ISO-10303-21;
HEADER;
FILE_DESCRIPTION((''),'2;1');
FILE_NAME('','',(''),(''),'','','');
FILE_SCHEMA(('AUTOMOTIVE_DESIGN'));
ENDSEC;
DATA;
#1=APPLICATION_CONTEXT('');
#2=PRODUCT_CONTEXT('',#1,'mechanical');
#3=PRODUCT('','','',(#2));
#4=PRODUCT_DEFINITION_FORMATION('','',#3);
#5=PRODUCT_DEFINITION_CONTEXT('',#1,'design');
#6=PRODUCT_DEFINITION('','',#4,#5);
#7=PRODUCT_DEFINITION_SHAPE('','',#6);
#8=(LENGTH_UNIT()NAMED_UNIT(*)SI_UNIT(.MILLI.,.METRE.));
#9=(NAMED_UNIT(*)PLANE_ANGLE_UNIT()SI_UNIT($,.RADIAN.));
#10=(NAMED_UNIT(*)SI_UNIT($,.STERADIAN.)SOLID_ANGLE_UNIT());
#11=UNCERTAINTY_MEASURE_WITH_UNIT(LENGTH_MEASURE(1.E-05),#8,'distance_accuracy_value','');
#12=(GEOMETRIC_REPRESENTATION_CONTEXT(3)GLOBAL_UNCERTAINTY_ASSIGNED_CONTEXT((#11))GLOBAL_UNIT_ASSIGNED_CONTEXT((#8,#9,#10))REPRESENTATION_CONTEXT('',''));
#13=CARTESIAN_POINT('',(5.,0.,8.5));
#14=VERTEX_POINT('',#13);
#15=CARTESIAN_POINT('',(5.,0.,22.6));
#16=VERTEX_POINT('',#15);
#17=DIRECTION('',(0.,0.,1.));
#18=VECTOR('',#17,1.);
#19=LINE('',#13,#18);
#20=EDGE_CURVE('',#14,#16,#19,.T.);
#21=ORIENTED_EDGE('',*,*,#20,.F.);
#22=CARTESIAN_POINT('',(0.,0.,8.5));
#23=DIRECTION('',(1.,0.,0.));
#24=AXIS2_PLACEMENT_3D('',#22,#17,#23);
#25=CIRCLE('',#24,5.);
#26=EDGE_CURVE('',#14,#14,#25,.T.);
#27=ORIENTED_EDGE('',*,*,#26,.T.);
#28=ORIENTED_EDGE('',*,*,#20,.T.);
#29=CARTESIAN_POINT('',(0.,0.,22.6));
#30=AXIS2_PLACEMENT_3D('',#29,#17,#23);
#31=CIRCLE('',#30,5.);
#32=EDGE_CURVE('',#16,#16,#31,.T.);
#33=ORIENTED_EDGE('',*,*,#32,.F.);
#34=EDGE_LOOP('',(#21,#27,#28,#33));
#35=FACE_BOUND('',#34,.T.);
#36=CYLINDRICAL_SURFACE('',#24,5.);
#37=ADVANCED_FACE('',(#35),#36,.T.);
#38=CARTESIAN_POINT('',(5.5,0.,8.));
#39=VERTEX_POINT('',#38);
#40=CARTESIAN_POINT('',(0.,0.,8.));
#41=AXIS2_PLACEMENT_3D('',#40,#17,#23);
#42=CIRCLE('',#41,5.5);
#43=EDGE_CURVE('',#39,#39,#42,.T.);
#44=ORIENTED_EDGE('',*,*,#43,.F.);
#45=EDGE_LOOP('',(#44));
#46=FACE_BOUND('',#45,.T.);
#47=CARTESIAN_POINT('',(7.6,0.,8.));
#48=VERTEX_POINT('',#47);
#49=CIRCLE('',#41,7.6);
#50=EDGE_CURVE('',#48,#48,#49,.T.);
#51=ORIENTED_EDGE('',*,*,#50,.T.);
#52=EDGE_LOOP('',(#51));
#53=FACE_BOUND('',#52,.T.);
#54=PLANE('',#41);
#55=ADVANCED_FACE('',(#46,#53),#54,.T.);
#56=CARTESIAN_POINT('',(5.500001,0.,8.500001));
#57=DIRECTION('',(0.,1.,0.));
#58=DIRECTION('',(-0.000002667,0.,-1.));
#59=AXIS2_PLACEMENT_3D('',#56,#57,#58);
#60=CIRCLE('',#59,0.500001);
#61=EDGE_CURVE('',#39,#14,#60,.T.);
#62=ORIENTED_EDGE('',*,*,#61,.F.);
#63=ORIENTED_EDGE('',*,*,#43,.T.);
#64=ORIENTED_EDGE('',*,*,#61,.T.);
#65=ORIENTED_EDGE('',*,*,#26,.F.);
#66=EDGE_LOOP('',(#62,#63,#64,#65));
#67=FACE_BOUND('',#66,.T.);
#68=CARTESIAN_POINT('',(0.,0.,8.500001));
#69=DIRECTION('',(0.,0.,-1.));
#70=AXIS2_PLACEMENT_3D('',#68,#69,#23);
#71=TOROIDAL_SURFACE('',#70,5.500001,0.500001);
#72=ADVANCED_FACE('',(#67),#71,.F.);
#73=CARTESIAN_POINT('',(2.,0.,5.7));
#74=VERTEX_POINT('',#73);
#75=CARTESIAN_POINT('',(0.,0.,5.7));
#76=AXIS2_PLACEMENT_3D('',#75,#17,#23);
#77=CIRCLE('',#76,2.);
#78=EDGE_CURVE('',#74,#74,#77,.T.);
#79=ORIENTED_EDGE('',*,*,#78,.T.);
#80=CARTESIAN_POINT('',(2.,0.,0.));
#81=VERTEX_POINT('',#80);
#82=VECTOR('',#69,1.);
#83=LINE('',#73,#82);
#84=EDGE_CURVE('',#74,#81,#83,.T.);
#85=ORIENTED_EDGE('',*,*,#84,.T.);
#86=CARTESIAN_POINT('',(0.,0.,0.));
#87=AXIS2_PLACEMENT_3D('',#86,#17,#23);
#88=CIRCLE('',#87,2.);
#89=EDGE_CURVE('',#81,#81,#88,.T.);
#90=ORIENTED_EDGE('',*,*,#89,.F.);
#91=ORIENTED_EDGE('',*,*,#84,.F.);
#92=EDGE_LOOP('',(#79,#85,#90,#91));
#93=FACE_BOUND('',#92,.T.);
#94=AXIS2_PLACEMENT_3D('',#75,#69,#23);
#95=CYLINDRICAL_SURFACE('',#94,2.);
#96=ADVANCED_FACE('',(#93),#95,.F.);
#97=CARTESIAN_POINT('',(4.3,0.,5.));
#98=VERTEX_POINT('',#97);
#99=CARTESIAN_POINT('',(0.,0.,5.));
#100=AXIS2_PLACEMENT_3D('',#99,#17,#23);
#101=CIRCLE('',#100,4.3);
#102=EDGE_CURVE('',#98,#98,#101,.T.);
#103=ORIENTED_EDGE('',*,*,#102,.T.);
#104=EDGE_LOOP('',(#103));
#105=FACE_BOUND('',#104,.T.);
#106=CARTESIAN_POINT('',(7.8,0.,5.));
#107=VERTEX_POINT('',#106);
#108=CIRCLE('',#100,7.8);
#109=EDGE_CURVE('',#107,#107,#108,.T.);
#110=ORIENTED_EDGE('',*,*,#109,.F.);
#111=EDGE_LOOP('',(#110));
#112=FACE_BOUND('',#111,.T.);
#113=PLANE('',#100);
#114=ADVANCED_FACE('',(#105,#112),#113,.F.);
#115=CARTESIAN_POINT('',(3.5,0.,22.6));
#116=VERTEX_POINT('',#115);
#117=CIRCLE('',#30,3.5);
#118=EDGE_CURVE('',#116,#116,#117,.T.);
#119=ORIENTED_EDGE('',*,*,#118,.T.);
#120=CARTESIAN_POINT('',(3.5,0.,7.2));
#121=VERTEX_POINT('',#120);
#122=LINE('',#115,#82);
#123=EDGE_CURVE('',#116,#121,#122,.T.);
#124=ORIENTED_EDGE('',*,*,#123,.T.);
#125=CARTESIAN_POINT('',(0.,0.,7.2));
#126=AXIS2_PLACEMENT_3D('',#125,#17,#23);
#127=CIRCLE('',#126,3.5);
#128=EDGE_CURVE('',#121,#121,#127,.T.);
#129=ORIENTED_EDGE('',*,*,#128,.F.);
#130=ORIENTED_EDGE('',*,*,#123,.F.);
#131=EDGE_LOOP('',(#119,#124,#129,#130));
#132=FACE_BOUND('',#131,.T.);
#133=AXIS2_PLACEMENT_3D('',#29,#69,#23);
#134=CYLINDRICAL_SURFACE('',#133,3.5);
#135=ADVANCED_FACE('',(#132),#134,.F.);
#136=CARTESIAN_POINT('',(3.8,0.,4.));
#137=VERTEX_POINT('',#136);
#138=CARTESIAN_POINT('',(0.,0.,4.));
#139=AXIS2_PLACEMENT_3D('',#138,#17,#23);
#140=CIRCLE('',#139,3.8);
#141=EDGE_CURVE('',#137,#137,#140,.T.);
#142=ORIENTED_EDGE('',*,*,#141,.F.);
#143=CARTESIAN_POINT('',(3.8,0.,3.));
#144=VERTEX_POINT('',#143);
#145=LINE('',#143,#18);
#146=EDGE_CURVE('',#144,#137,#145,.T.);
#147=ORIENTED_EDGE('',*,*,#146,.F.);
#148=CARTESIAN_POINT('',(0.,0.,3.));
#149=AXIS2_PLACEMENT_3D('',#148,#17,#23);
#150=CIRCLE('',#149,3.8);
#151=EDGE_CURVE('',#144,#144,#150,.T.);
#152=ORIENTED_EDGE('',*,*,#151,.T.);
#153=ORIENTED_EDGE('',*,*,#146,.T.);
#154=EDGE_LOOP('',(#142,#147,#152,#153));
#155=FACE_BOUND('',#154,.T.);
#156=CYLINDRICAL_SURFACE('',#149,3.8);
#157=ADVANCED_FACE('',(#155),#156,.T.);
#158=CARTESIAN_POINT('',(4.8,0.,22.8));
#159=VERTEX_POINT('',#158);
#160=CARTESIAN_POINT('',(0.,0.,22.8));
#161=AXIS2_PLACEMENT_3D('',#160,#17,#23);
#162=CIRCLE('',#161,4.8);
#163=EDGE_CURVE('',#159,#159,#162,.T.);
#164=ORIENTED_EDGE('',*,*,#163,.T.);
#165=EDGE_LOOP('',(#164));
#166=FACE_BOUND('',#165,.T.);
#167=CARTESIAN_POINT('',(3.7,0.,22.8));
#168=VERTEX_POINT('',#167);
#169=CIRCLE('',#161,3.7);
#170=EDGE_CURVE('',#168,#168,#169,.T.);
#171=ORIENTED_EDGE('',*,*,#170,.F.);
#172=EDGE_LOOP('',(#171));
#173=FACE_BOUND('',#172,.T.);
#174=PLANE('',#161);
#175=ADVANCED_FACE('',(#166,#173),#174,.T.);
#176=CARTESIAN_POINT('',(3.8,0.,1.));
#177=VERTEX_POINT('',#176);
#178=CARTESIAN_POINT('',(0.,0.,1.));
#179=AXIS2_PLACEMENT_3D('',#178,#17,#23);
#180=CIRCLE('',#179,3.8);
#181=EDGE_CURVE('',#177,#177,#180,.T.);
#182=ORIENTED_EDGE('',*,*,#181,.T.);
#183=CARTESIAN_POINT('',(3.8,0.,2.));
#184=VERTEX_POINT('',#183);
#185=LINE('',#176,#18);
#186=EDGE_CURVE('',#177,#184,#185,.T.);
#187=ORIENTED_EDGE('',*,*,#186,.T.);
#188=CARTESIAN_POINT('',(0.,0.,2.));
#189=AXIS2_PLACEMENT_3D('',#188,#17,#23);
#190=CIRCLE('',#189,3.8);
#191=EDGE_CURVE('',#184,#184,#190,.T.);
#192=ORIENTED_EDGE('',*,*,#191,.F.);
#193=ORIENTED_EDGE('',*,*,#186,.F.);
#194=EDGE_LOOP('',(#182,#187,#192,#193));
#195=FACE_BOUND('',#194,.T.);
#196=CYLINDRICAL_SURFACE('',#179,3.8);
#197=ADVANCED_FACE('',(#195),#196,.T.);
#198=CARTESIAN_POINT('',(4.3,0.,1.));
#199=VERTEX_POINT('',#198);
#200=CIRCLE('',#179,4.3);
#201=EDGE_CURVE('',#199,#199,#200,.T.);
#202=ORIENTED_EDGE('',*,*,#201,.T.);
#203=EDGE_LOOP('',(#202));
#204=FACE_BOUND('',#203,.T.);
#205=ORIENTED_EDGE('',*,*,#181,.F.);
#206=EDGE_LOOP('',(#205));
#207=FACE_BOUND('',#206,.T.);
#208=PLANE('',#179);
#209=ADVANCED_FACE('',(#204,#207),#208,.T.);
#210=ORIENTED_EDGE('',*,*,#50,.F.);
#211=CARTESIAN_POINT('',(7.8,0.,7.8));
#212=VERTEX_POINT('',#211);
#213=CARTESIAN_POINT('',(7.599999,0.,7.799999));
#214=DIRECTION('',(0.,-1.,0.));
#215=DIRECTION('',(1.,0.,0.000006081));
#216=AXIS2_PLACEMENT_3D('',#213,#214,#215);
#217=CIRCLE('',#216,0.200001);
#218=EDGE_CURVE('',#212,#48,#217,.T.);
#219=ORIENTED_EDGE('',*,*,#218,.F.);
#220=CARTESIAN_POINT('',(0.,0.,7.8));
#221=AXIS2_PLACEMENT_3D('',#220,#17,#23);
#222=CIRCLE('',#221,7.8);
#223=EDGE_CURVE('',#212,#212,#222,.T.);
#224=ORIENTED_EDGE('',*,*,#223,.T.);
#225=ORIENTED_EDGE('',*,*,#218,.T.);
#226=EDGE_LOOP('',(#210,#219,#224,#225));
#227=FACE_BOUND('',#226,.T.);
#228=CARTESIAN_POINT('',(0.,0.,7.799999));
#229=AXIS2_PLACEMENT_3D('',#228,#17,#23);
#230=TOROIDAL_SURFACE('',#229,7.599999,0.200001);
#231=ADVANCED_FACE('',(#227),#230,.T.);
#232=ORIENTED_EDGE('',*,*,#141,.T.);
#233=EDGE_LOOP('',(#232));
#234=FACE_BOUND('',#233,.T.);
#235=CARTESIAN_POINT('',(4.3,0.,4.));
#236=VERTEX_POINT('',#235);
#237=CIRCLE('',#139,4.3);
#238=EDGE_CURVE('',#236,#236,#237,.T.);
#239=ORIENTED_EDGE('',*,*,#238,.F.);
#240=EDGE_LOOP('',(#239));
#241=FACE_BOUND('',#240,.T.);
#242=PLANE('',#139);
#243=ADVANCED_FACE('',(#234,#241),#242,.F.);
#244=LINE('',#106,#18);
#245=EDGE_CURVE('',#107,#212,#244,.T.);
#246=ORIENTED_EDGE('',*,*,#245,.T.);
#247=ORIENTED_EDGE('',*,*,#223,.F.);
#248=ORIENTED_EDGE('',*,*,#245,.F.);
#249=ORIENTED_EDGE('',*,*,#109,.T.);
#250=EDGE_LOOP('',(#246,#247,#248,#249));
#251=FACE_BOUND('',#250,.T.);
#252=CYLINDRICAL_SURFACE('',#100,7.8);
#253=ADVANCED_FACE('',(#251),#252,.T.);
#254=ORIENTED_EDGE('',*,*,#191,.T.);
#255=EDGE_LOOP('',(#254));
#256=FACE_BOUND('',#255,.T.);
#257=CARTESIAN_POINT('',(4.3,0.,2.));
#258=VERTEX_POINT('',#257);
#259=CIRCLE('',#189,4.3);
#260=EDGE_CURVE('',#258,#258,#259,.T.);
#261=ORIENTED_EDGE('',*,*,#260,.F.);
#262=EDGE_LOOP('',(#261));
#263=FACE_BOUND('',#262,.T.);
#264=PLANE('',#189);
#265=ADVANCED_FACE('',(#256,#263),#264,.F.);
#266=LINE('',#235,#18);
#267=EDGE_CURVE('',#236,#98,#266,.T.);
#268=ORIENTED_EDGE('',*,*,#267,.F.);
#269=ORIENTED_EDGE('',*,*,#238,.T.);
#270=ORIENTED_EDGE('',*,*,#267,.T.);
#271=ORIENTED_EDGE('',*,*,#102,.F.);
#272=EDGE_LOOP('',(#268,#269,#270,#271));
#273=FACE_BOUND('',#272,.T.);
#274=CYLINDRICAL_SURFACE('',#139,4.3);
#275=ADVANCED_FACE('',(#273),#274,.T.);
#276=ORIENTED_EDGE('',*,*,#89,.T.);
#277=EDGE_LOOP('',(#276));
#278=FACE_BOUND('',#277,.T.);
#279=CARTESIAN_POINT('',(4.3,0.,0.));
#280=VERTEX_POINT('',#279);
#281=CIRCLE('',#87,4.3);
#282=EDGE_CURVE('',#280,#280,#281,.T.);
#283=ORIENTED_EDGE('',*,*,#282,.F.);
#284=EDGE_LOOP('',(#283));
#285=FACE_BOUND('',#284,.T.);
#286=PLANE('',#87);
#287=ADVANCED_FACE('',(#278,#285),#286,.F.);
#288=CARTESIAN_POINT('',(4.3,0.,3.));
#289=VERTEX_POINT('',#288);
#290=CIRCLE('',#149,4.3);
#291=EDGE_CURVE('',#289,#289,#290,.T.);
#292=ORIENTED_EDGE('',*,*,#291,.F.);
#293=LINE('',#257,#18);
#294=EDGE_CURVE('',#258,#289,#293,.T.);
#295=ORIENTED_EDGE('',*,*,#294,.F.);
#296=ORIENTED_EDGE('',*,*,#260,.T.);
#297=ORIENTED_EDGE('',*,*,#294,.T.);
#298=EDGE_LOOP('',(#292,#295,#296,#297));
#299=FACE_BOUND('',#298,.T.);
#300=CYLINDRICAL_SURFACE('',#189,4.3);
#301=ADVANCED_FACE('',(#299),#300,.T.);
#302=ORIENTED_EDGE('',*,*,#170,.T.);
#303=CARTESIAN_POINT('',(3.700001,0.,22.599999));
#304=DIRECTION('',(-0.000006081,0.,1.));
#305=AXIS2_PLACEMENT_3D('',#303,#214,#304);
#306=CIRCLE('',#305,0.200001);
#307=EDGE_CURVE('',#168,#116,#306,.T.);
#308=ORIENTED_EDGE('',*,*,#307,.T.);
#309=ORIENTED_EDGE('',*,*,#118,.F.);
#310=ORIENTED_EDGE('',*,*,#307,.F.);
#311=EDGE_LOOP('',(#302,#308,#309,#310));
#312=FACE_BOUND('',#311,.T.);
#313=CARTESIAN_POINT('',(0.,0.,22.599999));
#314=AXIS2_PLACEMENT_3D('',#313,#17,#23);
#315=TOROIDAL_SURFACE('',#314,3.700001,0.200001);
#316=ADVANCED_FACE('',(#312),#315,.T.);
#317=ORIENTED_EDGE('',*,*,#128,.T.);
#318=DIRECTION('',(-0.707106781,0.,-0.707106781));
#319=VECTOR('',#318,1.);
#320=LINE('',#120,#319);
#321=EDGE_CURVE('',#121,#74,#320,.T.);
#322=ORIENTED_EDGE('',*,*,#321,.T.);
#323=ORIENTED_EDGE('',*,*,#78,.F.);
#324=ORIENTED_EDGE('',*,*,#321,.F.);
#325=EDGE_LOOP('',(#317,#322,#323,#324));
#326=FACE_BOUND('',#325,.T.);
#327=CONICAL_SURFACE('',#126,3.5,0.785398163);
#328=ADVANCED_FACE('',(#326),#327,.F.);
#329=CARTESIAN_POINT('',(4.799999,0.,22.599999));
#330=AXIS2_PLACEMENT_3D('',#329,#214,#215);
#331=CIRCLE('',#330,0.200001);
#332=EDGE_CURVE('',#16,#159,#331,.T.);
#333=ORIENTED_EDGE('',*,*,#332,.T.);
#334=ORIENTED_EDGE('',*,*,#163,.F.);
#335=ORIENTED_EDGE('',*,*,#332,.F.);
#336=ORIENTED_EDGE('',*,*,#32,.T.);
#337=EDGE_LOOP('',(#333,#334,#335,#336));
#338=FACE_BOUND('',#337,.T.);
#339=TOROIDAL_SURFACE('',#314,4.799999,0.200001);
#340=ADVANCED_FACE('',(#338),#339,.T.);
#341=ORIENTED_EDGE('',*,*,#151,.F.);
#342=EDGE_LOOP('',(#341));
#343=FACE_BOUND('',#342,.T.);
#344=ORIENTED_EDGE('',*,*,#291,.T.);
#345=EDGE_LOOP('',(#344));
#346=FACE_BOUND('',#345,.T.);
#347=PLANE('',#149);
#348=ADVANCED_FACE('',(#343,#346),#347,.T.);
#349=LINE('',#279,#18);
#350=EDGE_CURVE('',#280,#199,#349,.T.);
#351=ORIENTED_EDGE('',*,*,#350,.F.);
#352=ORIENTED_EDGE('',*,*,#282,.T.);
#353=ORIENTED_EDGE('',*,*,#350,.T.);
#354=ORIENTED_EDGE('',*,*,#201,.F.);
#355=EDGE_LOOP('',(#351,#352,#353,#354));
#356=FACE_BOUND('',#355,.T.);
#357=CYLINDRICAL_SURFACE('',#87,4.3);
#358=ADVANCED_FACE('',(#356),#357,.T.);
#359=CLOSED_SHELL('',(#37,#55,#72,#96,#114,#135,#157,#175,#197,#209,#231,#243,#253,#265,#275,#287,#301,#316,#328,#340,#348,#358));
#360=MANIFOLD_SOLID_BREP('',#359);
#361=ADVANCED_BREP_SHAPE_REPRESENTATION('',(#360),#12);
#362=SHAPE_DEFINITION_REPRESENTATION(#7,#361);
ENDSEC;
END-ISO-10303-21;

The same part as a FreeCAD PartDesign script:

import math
import FreeCAD as App
import Part
import Sketcher

V = App.Vector
Q = App.Units.Quantity

doc = App.newDocument("Part")
body = doc.addObject("PartDesign::Body", "Body")

sketch1 = body.newObject("Sketcher::SketchObject", "Sketch")
sketch1.AttachmentSupport = (doc.getObject("XZ_Plane"), [""])
sketch1.MapMode = "FlatFace"
sketch1.addGeometry([
    Part.LineSegment(V(4.8, 22.8, 0), V(3.7, 22.8, 0)),
    Part.ArcOfCircle(Part.Circle(V(3.7, 22.6, 0), V(0, 0, 1), 0.2), math.radians(90), math.radians(180)),
    Part.LineSegment(V(3.5, 22.6, 0), V(3.5, 7.2, 0)),
    Part.LineSegment(V(3.5, 7.2, 0), V(2, 5.7, 0)),
    Part.LineSegment(V(2, 5.7, 0), V(2, 0, 0)),
    Part.LineSegment(V(2, 0, 0), V(4.3, 0, 0)),
    Part.LineSegment(V(4.3, 0, 0), V(4.3, 1, 0)),
    Part.LineSegment(V(4.3, 1, 0), V(3.8, 1, 0)),
    Part.LineSegment(V(3.8, 1, 0), V(3.8, 2, 0)),
    Part.LineSegment(V(3.8, 2, 0), V(4.3, 2, 0)),
    Part.LineSegment(V(4.3, 2, 0), V(4.3, 3, 0)),
    Part.LineSegment(V(4.3, 3, 0), V(3.8, 3, 0)),
    Part.LineSegment(V(3.8, 3, 0), V(3.8, 4, 0)),
    Part.LineSegment(V(3.8, 4, 0), V(4.3, 4, 0)),
    Part.LineSegment(V(4.3, 4, 0), V(4.3, 5, 0)),
    Part.LineSegment(V(4.3, 5, 0), V(7.8, 5, 0)),
    Part.LineSegment(V(7.8, 5, 0), V(7.8, 7.8, 0)),
    Part.ArcOfCircle(Part.Circle(V(7.6, 7.8, 0), V(0, 0, 1), 0.2), math.radians(0), math.radians(90)),
    Part.LineSegment(V(7.6, 8, 0), V(5.5, 8, 0)),
    Part.ArcOfCircle(Part.Circle(V(5.5, 8.5, 0), V(0, 0, 1), 0.5), math.radians(-180), math.radians(-90)),
    Part.LineSegment(V(5, 8.5, 0), V(5, 22.6, 0)),
    Part.ArcOfCircle(Part.Circle(V(4.8, 22.6, 0), V(0, 0, 1), 0.2), math.radians(0), math.radians(90)),
], False)
sketch1.addConstraint([
    Sketcher.Constraint("Coincident", 0, 2, 1, 1),
    Sketcher.Constraint("Coincident", 1, 2, 2, 1),
    Sketcher.Constraint("Coincident", 2, 2, 3, 1),
    Sketcher.Constraint("Coincident", 3, 2, 4, 1),
    Sketcher.Constraint("Coincident", 4, 2, 5, 1),
    Sketcher.Constraint("Coincident", 5, 2, 6, 1),
    Sketcher.Constraint("Coincident", 6, 2, 7, 1),
    Sketcher.Constraint("Coincident", 7, 2, 8, 1),
    Sketcher.Constraint("Coincident", 8, 2, 9, 1),
    Sketcher.Constraint("Coincident", 9, 2, 10, 1),
    Sketcher.Constraint("Coincident", 10, 2, 11, 1),
    Sketcher.Constraint("Coincident", 11, 2, 12, 1),
    Sketcher.Constraint("Coincident", 12, 2, 13, 1),
    Sketcher.Constraint("Coincident", 13, 2, 14, 1),
    Sketcher.Constraint("Coincident", 14, 2, 15, 1),
    Sketcher.Constraint("Coincident", 15, 2, 16, 1),
    Sketcher.Constraint("Coincident", 16, 2, 17, 1),
    Sketcher.Constraint("Coincident", 17, 2, 18, 1),
    Sketcher.Constraint("Coincident", 18, 2, 19, 2),
    Sketcher.Constraint("Coincident", 19, 1, 20, 1),
    Sketcher.Constraint("Coincident", 20, 2, 21, 1),
    Sketcher.Constraint("Coincident", 21, 2, 0, 1),
    Sketcher.Constraint("Horizontal", 0),
    Sketcher.Constraint("Vertical", 2),
    Sketcher.Constraint("Vertical", 4),
    Sketcher.Constraint("Horizontal", 5),
    Sketcher.Constraint("Vertical", 6),
    Sketcher.Constraint("Horizontal", 7),
    Sketcher.Constraint("Vertical", 8),
    Sketcher.Constraint("Horizontal", 9),
    Sketcher.Constraint("Vertical", 10),
    Sketcher.Constraint("Horizontal", 11),
    Sketcher.Constraint("Vertical", 12),
    Sketcher.Constraint("Horizontal", 13),
    Sketcher.Constraint("Vertical", 14),
    Sketcher.Constraint("Horizontal", 15),
    Sketcher.Constraint("Vertical", 16),
    Sketcher.Constraint("Horizontal", 18),
    Sketcher.Constraint("Vertical", 20),
    Sketcher.Constraint("Equal", 1, 17),
    Sketcher.Constraint("Equal", 17, 21),
    Sketcher.Constraint("PointOnObject", 4, 2, -1),
    Sketcher.Constraint("Horizontal", 21, 3, 1, 2),
    Sketcher.Constraint("Horizontal", 17, 3, 16, 2),
    Sketcher.Constraint("Horizontal", 1, 2, 20, 2),
    Sketcher.Constraint("Vertical", 1, 3, 0, 2),
    Sketcher.Constraint("Vertical", 6, 2, 9, 2),
    Sketcher.Constraint("Vertical", 8, 2, 11, 2),
    Sketcher.Constraint("Vertical", 10, 2, 13, 2),
    Sketcher.Constraint("Vertical", 19, 3, 18, 2),
    Sketcher.Constraint("Equal", 6, 8),
    Sketcher.Constraint("Equal", 8, 10),
    Sketcher.Constraint("Equal", 10, 12),
    Sketcher.Constraint("Equal", 12, 14),
    Sketcher.Constraint("Radius", 1, 0.200001),
    Sketcher.Constraint("Radius", 19, 0.500001),
    Sketcher.Constraint("DistanceY", 6, 1, 6, 2, 1.0),
    Sketcher.Constraint("Angle", 3, Q("-135 deg")),
    Sketcher.Constraint("DistanceX", 0, 2, 0, 1, 1.1),
    Sketcher.Constraint("DistanceX", 5, 1, 5, 2, 2.3),
    Sketcher.Constraint("DistanceX", 7, 2, 7, 1, 0.5),
    Sketcher.Constraint("DistanceX", 15, 1, 15, 2, 3.5),
    Sketcher.Constraint("DistanceX", 18, 2, 18, 1, 2.1),
    Sketcher.Constraint("DistanceY", 2, 2, 2, 1, 15.4),
    Sketcher.Constraint("DistanceY", 4, 2, 4, 1, 5.7),
    Sketcher.Constraint("DistanceY", 16, 1, 16, 2, 2.8),
    Sketcher.Constraint("DistanceY", 20, 1, 20, 2, 14.1),
    Sketcher.Constraint("DistanceX", -1, 1, 3, 2, 2.0),
    Sketcher.Constraint("DistanceX", -1, 1, 19, 1, 5.0),
    Sketcher.Constraint("DistanceY", 17, 3, 0, 2, 15.000001),
])
revolution = body.newObject("PartDesign::Revolution", "Revolution")
revolution.Profile = sketch1
revolution.ReferenceAxis = (sketch1, ["V_Axis"])
revolution.Angle = 360

doc.recompute()
